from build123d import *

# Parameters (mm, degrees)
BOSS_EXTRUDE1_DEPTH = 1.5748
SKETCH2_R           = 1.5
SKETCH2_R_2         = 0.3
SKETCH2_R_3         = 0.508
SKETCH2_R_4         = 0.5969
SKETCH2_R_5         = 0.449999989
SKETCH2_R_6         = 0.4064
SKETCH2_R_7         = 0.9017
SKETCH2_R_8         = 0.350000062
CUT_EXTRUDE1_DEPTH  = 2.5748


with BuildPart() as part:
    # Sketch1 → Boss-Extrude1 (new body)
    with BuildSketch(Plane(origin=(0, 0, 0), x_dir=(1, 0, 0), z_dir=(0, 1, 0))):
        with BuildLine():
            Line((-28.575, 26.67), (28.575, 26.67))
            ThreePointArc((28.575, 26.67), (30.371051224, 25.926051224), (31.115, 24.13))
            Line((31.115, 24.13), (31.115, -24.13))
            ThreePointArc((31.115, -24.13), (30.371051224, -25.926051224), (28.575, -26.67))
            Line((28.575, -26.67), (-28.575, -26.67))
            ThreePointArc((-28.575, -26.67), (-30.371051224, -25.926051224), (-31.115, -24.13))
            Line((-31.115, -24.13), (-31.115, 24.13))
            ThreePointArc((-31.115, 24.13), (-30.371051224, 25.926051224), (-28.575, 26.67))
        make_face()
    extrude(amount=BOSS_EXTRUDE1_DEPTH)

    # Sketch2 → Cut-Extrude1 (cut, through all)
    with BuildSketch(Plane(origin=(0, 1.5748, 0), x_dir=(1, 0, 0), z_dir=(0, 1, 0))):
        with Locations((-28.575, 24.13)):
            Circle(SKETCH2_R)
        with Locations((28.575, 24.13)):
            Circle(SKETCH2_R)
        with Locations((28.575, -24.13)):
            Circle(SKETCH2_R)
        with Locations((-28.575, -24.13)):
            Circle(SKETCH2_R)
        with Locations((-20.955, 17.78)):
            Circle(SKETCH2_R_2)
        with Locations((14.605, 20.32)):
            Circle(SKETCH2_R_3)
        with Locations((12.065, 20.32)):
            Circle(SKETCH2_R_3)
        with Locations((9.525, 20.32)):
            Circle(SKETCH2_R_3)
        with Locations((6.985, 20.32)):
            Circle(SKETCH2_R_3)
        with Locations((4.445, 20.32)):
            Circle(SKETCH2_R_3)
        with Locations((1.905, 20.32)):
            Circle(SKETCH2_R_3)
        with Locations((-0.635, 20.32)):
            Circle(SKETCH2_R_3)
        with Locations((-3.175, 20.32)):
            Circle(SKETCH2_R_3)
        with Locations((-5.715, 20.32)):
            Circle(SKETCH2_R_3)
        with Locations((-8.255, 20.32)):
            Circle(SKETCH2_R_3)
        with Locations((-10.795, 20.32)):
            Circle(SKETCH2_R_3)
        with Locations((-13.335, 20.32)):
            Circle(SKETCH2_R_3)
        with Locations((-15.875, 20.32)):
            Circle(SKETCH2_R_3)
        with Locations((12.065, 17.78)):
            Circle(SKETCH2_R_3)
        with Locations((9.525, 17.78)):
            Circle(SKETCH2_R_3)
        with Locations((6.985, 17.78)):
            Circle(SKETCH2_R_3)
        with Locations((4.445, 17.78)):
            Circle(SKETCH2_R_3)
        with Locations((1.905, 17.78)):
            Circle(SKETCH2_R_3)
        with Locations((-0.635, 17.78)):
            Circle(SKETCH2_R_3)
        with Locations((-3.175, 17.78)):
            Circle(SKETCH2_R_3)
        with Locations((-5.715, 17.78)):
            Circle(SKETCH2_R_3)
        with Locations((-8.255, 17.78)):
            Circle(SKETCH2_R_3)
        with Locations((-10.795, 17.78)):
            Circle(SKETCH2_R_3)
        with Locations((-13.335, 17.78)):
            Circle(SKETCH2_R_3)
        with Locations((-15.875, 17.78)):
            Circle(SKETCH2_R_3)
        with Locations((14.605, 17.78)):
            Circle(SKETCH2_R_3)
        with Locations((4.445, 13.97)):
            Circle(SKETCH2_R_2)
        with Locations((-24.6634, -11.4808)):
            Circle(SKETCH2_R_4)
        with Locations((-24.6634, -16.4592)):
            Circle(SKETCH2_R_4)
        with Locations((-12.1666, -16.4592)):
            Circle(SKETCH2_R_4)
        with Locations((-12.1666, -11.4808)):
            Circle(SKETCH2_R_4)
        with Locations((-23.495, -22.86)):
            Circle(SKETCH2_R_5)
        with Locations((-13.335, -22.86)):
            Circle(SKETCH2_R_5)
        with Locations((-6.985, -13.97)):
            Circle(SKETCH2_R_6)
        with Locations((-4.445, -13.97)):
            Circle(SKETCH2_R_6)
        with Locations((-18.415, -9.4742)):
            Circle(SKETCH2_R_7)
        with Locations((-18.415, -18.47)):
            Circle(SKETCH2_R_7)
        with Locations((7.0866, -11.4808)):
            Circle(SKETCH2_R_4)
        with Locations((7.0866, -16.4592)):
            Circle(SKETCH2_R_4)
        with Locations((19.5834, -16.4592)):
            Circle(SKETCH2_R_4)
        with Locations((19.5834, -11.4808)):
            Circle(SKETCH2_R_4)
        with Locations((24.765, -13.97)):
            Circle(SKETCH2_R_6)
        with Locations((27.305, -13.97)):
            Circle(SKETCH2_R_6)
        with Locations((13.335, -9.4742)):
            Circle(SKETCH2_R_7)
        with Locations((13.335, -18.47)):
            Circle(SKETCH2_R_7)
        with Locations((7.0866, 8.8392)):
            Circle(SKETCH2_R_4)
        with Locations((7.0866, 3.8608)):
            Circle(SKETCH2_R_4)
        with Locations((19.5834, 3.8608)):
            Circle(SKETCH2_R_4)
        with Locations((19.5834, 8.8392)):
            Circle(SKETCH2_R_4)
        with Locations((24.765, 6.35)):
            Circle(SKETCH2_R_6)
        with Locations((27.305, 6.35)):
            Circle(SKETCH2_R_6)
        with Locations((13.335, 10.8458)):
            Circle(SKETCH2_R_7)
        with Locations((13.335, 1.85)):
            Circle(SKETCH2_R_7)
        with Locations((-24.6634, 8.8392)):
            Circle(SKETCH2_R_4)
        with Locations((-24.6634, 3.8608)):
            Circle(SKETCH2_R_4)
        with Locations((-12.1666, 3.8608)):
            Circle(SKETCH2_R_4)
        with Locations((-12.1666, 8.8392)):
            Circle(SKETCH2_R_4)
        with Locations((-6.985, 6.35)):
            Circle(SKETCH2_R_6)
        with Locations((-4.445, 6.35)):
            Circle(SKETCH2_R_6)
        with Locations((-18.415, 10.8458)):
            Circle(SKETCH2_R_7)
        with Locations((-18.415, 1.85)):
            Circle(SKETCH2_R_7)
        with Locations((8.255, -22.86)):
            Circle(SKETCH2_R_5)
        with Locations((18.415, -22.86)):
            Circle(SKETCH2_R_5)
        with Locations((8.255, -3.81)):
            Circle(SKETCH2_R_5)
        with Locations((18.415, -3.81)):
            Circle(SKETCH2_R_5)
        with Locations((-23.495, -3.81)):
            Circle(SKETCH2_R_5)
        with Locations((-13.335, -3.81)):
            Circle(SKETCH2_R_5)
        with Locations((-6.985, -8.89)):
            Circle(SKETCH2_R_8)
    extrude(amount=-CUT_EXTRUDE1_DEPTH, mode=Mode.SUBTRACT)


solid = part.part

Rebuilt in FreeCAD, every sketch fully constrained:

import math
import FreeCAD as App
import Part
import Sketcher
from FreeCAD import Vector
Q = App.Units.Quantity

doc = App.newDocument("Part")
body = doc.addObject("PartDesign::Body", "Body")

# Sketch on XZ plane
sketch1 = body.newObject("Sketcher::SketchObject", "Sketch")
sketch1.AttachmentSupport = (doc.getObject("XZ_Plane"), [""])
sketch1.MapMode = "FlatFace"
sketch1.addGeometry([
    Part.LineSegment(Vector(28.575, -26.67, 0), Vector(-28.575, -26.67, 0)),  # 0
    Part.ArcOfCircle(Part.Circle(Vector(-28.575, -24.13, 0), Vector(0, 0, 1), 2.54), math.radians(-180), math.radians(-90)),  # 1
    Part.LineSegment(Vector(-31.115, -24.13, 0), Vector(-31.115, 24.13, 0)),  # 2
    Part.ArcOfCircle(Part.Circle(Vector(-28.575, 24.13, 0), Vector(0, 0, 1), 2.54), math.radians(90), math.radians(180)),  # 3
    Part.LineSegment(Vector(-28.575, 26.67, 0), Vector(28.575, 26.67, 0)),  # 4
    Part.ArcOfCircle(Part.Circle(Vector(28.575, 24.13, 0), Vector(0, 0, 1), 2.54), math.radians(0), math.radians(90)),  # 5
    Part.LineSegment(Vector(31.115, 24.13, 0), Vector(31.115, -24.13, 0)),  # 6
    Part.ArcOfCircle(Part.Circle(Vector(28.575, -24.13, 0), Vector(0, 0, 1), 2.54), math.radians(-90), math.radians(0)),  # 7
], False)
sketch1.addConstraint([
    Sketcher.Constraint("Tangent", 0, 2, 1, 2),
    Sketcher.Constraint("Tangent", 1, 1, 2, 1),
    Sketcher.Constraint("Tangent", 2, 2, 3, 2),
    Sketcher.Constraint("Tangent", 3, 1, 4, 1),
    Sketcher.Constraint("Tangent", 4, 2, 5, 2),
    Sketcher.Constraint("Tangent", 5, 1, 6, 1),
    Sketcher.Constraint("Tangent", 6, 2, 7, 2),
    Sketcher.Constraint("Tangent", 7, 1, 0, 1),
    Sketcher.Constraint("Horizontal", 0),
    Sketcher.Constraint("Vertical", 2),
    Sketcher.Constraint("Horizontal", 4),
    Sketcher.Constraint("Vertical", 6),
    Sketcher.Constraint("Equal", 1, 3),
    Sketcher.Constraint("Equal", 3, 5),
    Sketcher.Constraint("Equal", 5, 7),
    Sketcher.Constraint("Symmetric", 1, 3, 5, 3, -1, 1),
    Sketcher.Constraint("Radius", 1, Q("0.1 in")),
    Sketcher.Constraint("DistanceY", 2, 1, 2, 2, Q("1.9 in")),
    Sketcher.Constraint("DistanceX", 0, 2, 0, 1, Q("2.25 in")),
])
pad1 = body.newObject("PartDesign::Pad", "Pad")
pad1.Profile = sketch1
pad1.Length = Q("0.062 in")
pad1.Reversed = True

# Sketch on XZ plane
sketch2 = body.newObject("Sketcher::SketchObject", "Sketch001")
sketch2.AttachmentSupport = (doc.getObject("XZ_Plane"), [""])
sketch2.MapMode = "FlatFace"
sketch2.AttachmentOffset = App.Placement(Vector(0, 0, -0.062 * 25.4), App.Rotation())
sketch2.addGeometry([
    Part.Circle(Vector(-28.575, -24.13, 0), Vector(0, 0, 1), 1.5),  # 0
    Part.Circle(Vector(28.575, -24.13, 0), Vector(0, 0, 1), 1.5),  # 1
    Part.Circle(Vector(28.575, 24.13, 0), Vector(0, 0, 1), 1.5),  # 2
    Part.Circle(Vector(-28.575, 24.13, 0), Vector(0, 0, 1), 1.5),  # 3
    Part.Circle(Vector(-20.955, -17.78, 0), Vector(0, 0, 1), 0.3),  # 4
    Part.Circle(Vector(14.605, -20.32, 0), Vector(0, 0, 1), 0.508),  # 5
    Part.Circle(Vector(12.065, -20.32, 0), Vector(0, 0, 1), 0.508),  # 6
    Part.Circle(Vector(9.525, -20.32, 0), Vector(0, 0, 1), 0.508),  # 7
    Part.Circle(Vector(6.985, -20.32, 0), Vector(0, 0, 1), 0.508),  # 8
    Part.Circle(Vector(4.445, -20.32, 0), Vector(0, 0, 1), 0.508),  # 9
    Part.Circle(Vector(1.905, -20.32, 0), Vector(0, 0, 1), 0.508),  # 10
    Part.Circle(Vector(-0.635, -20.32, 0), Vector(0, 0, 1), 0.508),  # 11
    Part.Circle(Vector(-3.175, -20.32, 0), Vector(0, 0, 1), 0.508),  # 12
    Part.Circle(Vector(-5.715, -20.32, 0), Vector(0, 0, 1), 0.508),  # 13
    Part.Circle(Vector(-8.255, -20.32, 0), Vector(0, 0, 1), 0.508),  # 14
    Part.Circle(Vector(-10.795, -20.32, 0), Vector(0, 0, 1), 0.508),  # 15
    Part.Circle(Vector(-13.335, -20.32, 0), Vector(0, 0, 1), 0.508),  # 16
    Part.Circle(Vector(-15.875, -20.32, 0), Vector(0, 0, 1), 0.508),  # 17
    Part.Circle(Vector(12.065, -17.78, 0), Vector(0, 0, 1), 0.508),  # 18
    Part.Circle(Vector(9.525, -17.78, 0), Vector(0, 0, 1), 0.508),  # 19
    Part.Circle(Vector(6.985, -17.78, 0), Vector(0, 0, 1), 0.508),  # 20
    Part.Circle(Vector(4.445, -17.78, 0), Vector(0, 0, 1), 0.508),  # 21
    Part.Circle(Vector(1.905, -17.78, 0), Vector(0, 0, 1), 0.508),  # 22
    Part.Circle(Vector(-0.635, -17.78, 0), Vector(0, 0, 1), 0.508),  # 23
    Part.Circle(Vector(-3.175, -17.78, 0), Vector(0, 0, 1), 0.508),  # 24
    Part.Circle(Vector(-5.715, -17.78, 0), Vector(0, 0, 1), 0.508),  # 25
    Part.Circle(Vector(-8.255, -17.78, 0), Vector(0, 0, 1), 0.508),  # 26
    Part.Circle(Vector(-10.795, -17.78, 0), Vector(0, 0, 1), 0.508),  # 27
    Part.Circle(Vector(-13.335, -17.78, 0), Vector(0, 0, 1), 0.508),  # 28
    Part.Circle(Vector(-15.875, -17.78, 0), Vector(0, 0, 1), 0.508),  # 29
    Part.Circle(Vector(14.605, -17.78, 0), Vector(0, 0, 1), 0.508),  # 30
    Part.Circle(Vector(4.445, -13.97, 0), Vector(0, 0, 1), 0.3),  # 31
    Part.Circle(Vector(-24.6634, 11.4808, 0), Vector(0, 0, 1), 0.5969),  # 32
    Part.Circle(Vector(-24.6634, 16.4592, 0), Vector(0, 0, 1), 0.5969),  # 33
    Part.Circle(Vector(-12.1666, 16.4592, 0), Vector(0, 0, 1), 0.5969),  # 34
    Part.Circle(Vector(-12.1666, 11.4808, 0), Vector(0, 0, 1), 0.5969),  # 35
    Part.Circle(Vector(-23.495, 22.86, 0), Vector(0, 0, 1), 0.45),  # 36
    Part.Circle(Vector(-13.335, 22.86, 0), Vector(0, 0, 1), 0.45),  # 37
    Part.Circle(Vector(-6.985, 13.97, 0), Vector(0, 0, 1), 0.4064),  # 38
    Part.Circle(Vector(-4.445, 13.97, 0), Vector(0, 0, 1), 0.4064),  # 39
    Part.Circle(Vector(-18.415, 9.4742, 0), Vector(0, 0, 1), 0.9017),  # 40
    Part.Circle(Vector(-18.415, 18.47, 0), Vector(0, 0, 1), 0.9017),  # 41
    Part.Circle(Vector(7.0866, 11.4808, 0), Vector(0, 0, 1), 0.5969),  # 42
    Part.Circle(Vector(7.0866, 16.4592, 0), Vector(0, 0, 1), 0.5969),  # 43
    Part.Circle(Vector(19.5834, 16.4592, 0), Vector(0, 0, 1), 0.5969),  # 44
    Part.Circle(Vector(19.5834, 11.4808, 0), Vector(0, 0, 1), 0.5969),  # 45
    Part.Circle(Vector(24.765, 13.97, 0), Vector(0, 0, 1), 0.4064),  # 46
    Part.Circle(Vector(27.305, 13.97, 0), Vector(0, 0, 1), 0.4064),  # 47
    Part.Circle(Vector(13.335, 9.4742, 0), Vector(0, 0, 1), 0.9017),  # 48
    Part.Circle(Vector(13.335, 18.47, 0), Vector(0, 0, 1), 0.9017),  # 49
    Part.Circle(Vector(7.0866, -8.8392, 0), Vector(0, 0, 1), 0.5969),  # 50
    Part.Circle(Vector(7.0866, -3.8608, 0), Vector(0, 0, 1), 0.5969),  # 51
    Part.Circle(Vector(19.5834, -3.8608, 0), Vector(0, 0, 1), 0.5969),  # 52
    Part.Circle(Vector(19.5834, -8.8392, 0), Vector(0, 0, 1), 0.5969),  # 53
    Part.Circle(Vector(24.765, -6.35, 0), Vector(0, 0, 1), 0.4064),  # 54
    Part.Circle(Vector(27.305, -6.35, 0), Vector(0, 0, 1), 0.4064),  # 55
    Part.Circle(Vector(13.335, -10.8458, 0), Vector(0, 0, 1), 0.9017),  # 56
    Part.Circle(Vector(13.335, -1.85, 0), Vector(0, 0, 1), 0.9017),  # 57
    Part.Circle(Vector(-24.6634, -8.8392, 0), Vector(0, 0, 1), 0.5969),  # 58
    Part.Circle(Vector(-24.6634, -3.8608, 0), Vector(0, 0, 1), 0.5969),  # 59
    Part.Circle(Vector(-12.1666, -3.8608, 0), Vector(0, 0, 1), 0.5969),  # 60
    Part.Circle(Vector(-12.1666, -8.8392, 0), Vector(0, 0, 1), 0.5969),  # 61
    Part.Circle(Vector(-6.985, -6.35, 0), Vector(0, 0, 1), 0.4064),  # 62
    Part.Circle(Vector(-4.445, -6.35, 0), Vector(0, 0, 1), 0.4064),  # 63
    Part.Circle(Vector(-18.415, -10.8458, 0), Vector(0, 0, 1), 0.9017),  # 64
    Part.Circle(Vector(-18.415, -1.85, 0), Vector(0, 0, 1), 0.9017),  # 65
    Part.Circle(Vector(8.255, 22.86, 0), Vector(0, 0, 1), 0.45),  # 66
    Part.Circle(Vector(18.415, 22.86, 0), Vector(0, 0, 1), 0.45),  # 67
    Part.Circle(Vector(8.255, 3.81, 0), Vector(0, 0, 1), 0.45),  # 68
    Part.Circle(Vector(18.415, 3.81, 0), Vector(0, 0, 1), 0.45),  # 69
    Part.Circle(Vector(-23.495, 3.81, 0), Vector(0, 0, 1), 0.45),  # 70
    Part.Circle(Vector(-13.335, 3.81, 0), Vector(0, 0, 1), 0.45),  # 71
    Part.Circle(Vector(-6.985, 8.89, 0), Vector(0, 0, 1), 0.35),  # 72
], False)
sketch2.addConstraint([
    Sketcher.Constraint("Equal", 0, 1),
    Sketcher.Constraint("Equal", 1, 2),
    Sketcher.Constraint("Equal", 2, 3),
    Sketcher.Constraint("Equal", 5, 6),
    Sketcher.Constraint("Equal", 6, 7),
    Sketcher.Constraint("Equal", 7, 8),
    Sketcher.Constraint("Equal", 8, 9),
    Sketcher.Constraint("Equal", 9, 10),
    Sketcher.Constraint("Equal", 10, 11),
    Sketcher.Constraint("Equal", 11, 12),
    Sketcher.Constraint("Equal", 12, 13),
    Sketcher.Constraint("Equal", 13, 14),
    Sketcher.Constraint("Equal", 14, 15),
    Sketcher.Constraint("Equal", 15, 16),
    Sketcher.Constraint("Equal", 16, 17),
    Sketcher.Constraint("Equal", 17, 18),
    Sketcher.Constraint("Equal", 18, 19),
    Sketcher.Constraint("Equal", 19, 20),
    Sketcher.Constraint("Equal", 20, 21),
    Sketcher.Constraint("Equal", 21, 22),
    Sketcher.Constraint("Equal", 22, 23),
    Sketcher.Constraint("Equal", 23, 24),
    Sketcher.Constraint("Equal", 24, 25),
    Sketcher.Constraint("Equal", 25, 26),
    Sketcher.Constraint("Equal", 26, 27),
    Sketcher.Constraint("Equal", 27, 28),
    Sketcher.Constraint("Equal", 28, 29),
    Sketcher.Constraint("Equal", 29, 30),
    Sketcher.Constraint("Equal", 4, 31),
    Sketcher.Constraint("Equal", 32, 33),
    Sketcher.Constraint("Equal", 33, 34),
    Sketcher.Constraint("Equal", 34, 35),
    Sketcher.Constraint("Equal", 36, 37),
    Sketcher.Constraint("Equal", 38, 39),
    Sketcher.Constraint("Equal", 40, 41),
    Sketcher.Constraint("Equal", 35, 42),
    Sketcher.Constraint("Equal", 42, 43),
    Sketcher.Constraint("Equal", 43, 44),
    Sketcher.Constraint("Equal", 44, 45),
    Sketcher.Constraint("Equal", 39, 46),
    Sketcher.Constraint("Equal", 46, 47),
    Sketcher.Constraint("Equal", 41, 48),
    Sketcher.Constraint("Equal", 48, 49),
    Sketcher.Constraint("Equal", 45, 50),
    Sketcher.Constraint("Equal", 50, 51),
    Sketcher.Constraint("Equal", 51, 52),
    Sketcher.Constraint("Equal", 52, 53),
    Sketcher.Constraint("Equal", 47, 54),
    Sketcher.Constraint("Equal", 54, 55),
    Sketcher.Constraint("Equal", 49, 56),
    Sketcher.Constraint("Equal", 56, 57),
    Sketcher.Constraint("Equal", 53, 58),
    Sketcher.Constraint("Equal", 58, 59),
    Sketcher.Constraint("Equal", 59, 60),
    Sketcher.Constraint("Equal", 60, 61),
    Sketcher.Constraint("Equal", 55, 62),
    Sketcher.Constraint("Equal", 62, 63),
    Sketcher.Constraint("Equal", 57, 64),
    Sketcher.Constraint("Equal", 64, 65),
    Sketcher.Constraint("Equal", 37, 66),
    Sketcher.Constraint("Equal", 66, 67),
    Sketcher.Constraint("Equal", 67, 68),
    Sketcher.Constraint("Equal", 68, 69),
    Sketcher.Constraint("Equal", 69, 70),
    Sketcher.Constraint("Equal", 70, 71),
    Sketcher.Constraint("Symmetric", 0, 3, 2, 3, -1, 1),
    Sketcher.Constraint("Symmetric", 1, 3, 3, 3, -1, 1),
    Sketcher.Constraint("Symmetric", 31, 3, 39, 3, -1, 1),
    Sketcher.Constraint("Symmetric", 0, 3, 1, 3, -2),
    Sketcher.Constraint("Horizontal", 5, 3, 6, 3),
    Sketcher.Constraint("Horizontal", 6, 3, 7, 3),
    Sketcher.Constraint("Horizontal", 7, 3, 8, 3),
    Sketcher.Constraint("Horizontal", 8, 3, 9, 3),
    Sketcher.Constraint("Horizontal", 9, 3, 10, 3),
    Sketcher.Constraint("Horizontal", 10, 3, 11, 3),
    Sketcher.Constraint("Horizontal", 11, 3, 12, 3),
    Sketcher.Constraint("Horizontal", 12, 3, 13, 3),
    Sketcher.Constraint("Horizontal", 13, 3, 14, 3),
    Sketcher.Constraint("Horizontal", 14, 3, 15, 3),
    Sketcher.Constraint("Horizontal", 15, 3, 16, 3),
    Sketcher.Constraint("Horizontal", 16, 3, 17, 3),
    Sketcher.Constraint("Horizontal", 4, 3, 18, 3),
    Sketcher.Constraint("Horizontal", 18, 3, 19, 3),
    Sketcher.Constraint("Horizontal", 19, 3, 20, 3),
    Sketcher.Constraint("Horizontal", 20, 3, 21, 3),
    Sketcher.Constraint("Horizontal", 21, 3, 22, 3),
    Sketcher.Constraint("Horizontal", 22, 3, 23, 3),
    Sketcher.Constraint("Horizontal", 23, 3, 24, 3),
    Sketcher.Constraint("Horizontal", 24, 3, 25, 3),
    Sketcher.Constraint("Horizontal", 25, 3, 26, 3),
    Sketcher.Constraint("Horizontal", 26, 3, 27, 3),
    Sketcher.Constraint("Horizontal", 27, 3, 28, 3),
    Sketcher.Constraint("Horizontal", 28, 3, 29, 3),
    Sketcher.Constraint("Horizontal", 29, 3, 30, 3),
    Sketcher.Constraint("Horizontal", 33, 3, 34, 3),
    Sketcher.Constraint("Horizontal", 32, 3, 35, 3),
    Sketcher.Constraint("Horizontal", 36, 3, 37, 3),
    Sketcher.Constraint("Horizontal", 38, 3, 39, 3),
    Sketcher.Constraint("Horizontal", 35, 3, 42, 3),
    Sketcher.Constraint("Horizontal", 34, 3, 43, 3),
    Sketcher.Constraint("Horizontal", 43, 3, 44, 3),
    Sketcher.Constraint("Horizontal", 42, 3, 45, 3),
    Sketcher.Constraint("Horizontal", 39, 3, 46, 3),
    Sketcher.Constraint("Horizontal", 46, 3, 47, 3),
    Sketcher.Constraint("Horizontal", 40, 3, 48, 3),
    Sketcher.Constraint("Horizontal", 41, 3, 49, 3),
    Sketcher.Constraint("Horizontal", 51, 3, 52, 3),
    Sketcher.Constraint("Horizontal", 50, 3, 53, 3),
    Sketcher.Constraint("Horizontal", 54, 3, 55, 3),
    Sketcher.Constraint("Horizontal", 53, 3, 58, 3),
    Sketcher.Constraint("Horizontal", 52, 3, 59, 3),
    Sketcher.Constraint("Horizontal", 59, 3, 60, 3),
    Sketcher.Constraint("Horizontal", 58, 3, 61, 3),
    Sketcher.Constraint("Horizontal", 55, 3, 62, 3),
    Sketcher.Constraint("Horizontal", 62, 3, 63, 3),
    Sketcher.Constraint("Horizontal", 56, 3, 64, 3),
    Sketcher.Constraint("Horizontal", 57, 3, 65, 3),
    Sketcher.Constraint("Horizontal", 37, 3, 66, 3),
    Sketcher.Constraint("Horizontal", 66, 3, 67, 3),
    Sketcher.Constraint("Horizontal", 68, 3, 69, 3),
    Sketcher.Constraint("Horizontal", 69, 3, 70, 3),
    Sketcher.Constraint("Horizontal", 70, 3, 71, 3),
    Sketcher.Constraint("Vertical", 6, 3, 18, 3),
    Sketcher.Constraint("Vertical", 7, 3, 19, 3),
    Sketcher.Constraint("Vertical", 8, 3, 20, 3),
    Sketcher.Constraint("Vertical", 9, 3, 21, 3),
    Sketcher.Constraint("Vertical", 10, 3, 22, 3),
    Sketcher.Constraint("Vertical", 11, 3, 23, 3),
    Sketcher.Constraint("Vertical", 12, 3, 24, 3),
    Sketcher.Constraint("Vertical", 13, 3, 25, 3),
    Sketcher.Constraint("Vertical", 14, 3, 26, 3),
    Sketcher.Constraint("Vertical", 15, 3, 27, 3),
    Sketcher.Constraint("Vertical", 16, 3, 28, 3),
    Sketcher.Constraint("Vertical", 17, 3, 29, 3),
    Sketcher.Constraint("Vertical", 5, 3, 30, 3),
    Sketcher.Constraint("Vertical", 21, 3, 31, 3),
    Sketcher.Constraint("Vertical", 32, 3, 33, 3),
    Sketcher.Constraint("Vertical", 34, 3, 35, 3),
    Sketcher.Constraint("Vertical", 28, 3, 37, 3),
    Sketcher.Constraint("Vertical", 40, 3, 41, 3),
    Sketcher.Constraint("Vertical", 42, 3, 43, 3),
    Sketcher.Constraint("Vertical", 44, 3, 45, 3),
    Sketcher.Constraint("Vertical", 48, 3, 49, 3),
    Sketcher.Constraint("Vertical", 43, 3, 50, 3),
    Sketcher.Constraint("Vertical", 50, 3, 51, 3),
    Sketcher.Constraint("Vertical", 45, 3, 52, 3),
    Sketcher.Constraint("Vertical", 52, 3, 53, 3),
    Sketcher.Constraint("Vertical", 46, 3, 54, 3),
    Sketcher.Constraint("Vertical", 47, 3, 55, 3),
    Sketcher.Constraint("Vertical", 49, 3, 56, 3),
    Sketcher.Constraint("Vertical", 56, 3, 57, 3),
    Sketcher.Constraint("Vertical", 33, 3, 58, 3),
    Sketcher.Constraint("Vertical", 58, 3, 59, 3),
    Sketcher.Constraint("Vertical", 35, 3, 60, 3),
    Sketcher.Constraint("Vertical", 60, 3, 61, 3),
    Sketcher.Constraint("Vertical", 38, 3, 62, 3),
    Sketcher.Constraint("Vertical", 39, 3, 63, 3),
    Sketcher.Constraint("Vertical", 41, 3, 64, 3),
    Sketcher.Constraint("Vertical", 64, 3, 65, 3),
    Sketcher.Constraint("Vertical", 66, 3, 68, 3),
    Sketcher.Constraint("Vertical", 67, 3, 69, 3),
    Sketcher.Constraint("Vertical", 36, 3, 70, 3),
    Sketcher.Constraint("Vertical", 37, 3, 71, 3),
    Sketcher.Constraint("Vertical", 62, 3, 72, 3),
    Sketcher.Constraint("Diameter", 5, Q("0.04 in")),
    Sketcher.Constraint("Diameter", 32, Q("0.047 in")),
    Sketcher.Constraint("Diameter", 38, Q("0.032 in")),
    Sketcher.Constraint("Diameter", 40, Q("0.071 in")),
    Sketcher.Constraint("DistanceY", 4, 3, -1, 1, Q("0.7 in")),
    Sketcher.Constraint("DistanceY", 5, 3, -1, 1, Q("0.8 in")),
    Sketcher.Constraint("DistanceY", -1, 1, 36, 3, Q("0.9 in")),
    Sketcher.Constraint("Diameter", 0, Q("3 mm")),
    Sketcher.Constraint("Diameter", 4, Q("0.6 mm")),
    Sketcher.Constraint("Diameter", 36, Q("0.9 mm")),
    Sketcher.Constraint("Diameter", 72, Q("0.7 mm")),
    Sketcher.Constraint("DistanceY", 0, 3, -1, 1, Q("0.95 in")),
    Sketcher.Constraint("DistanceY", 31, 3, -1, 1, Q("0.55 in")),
    Sketcher.Constraint("DistanceY", 54, 3, -1, 1, Q("0.25 in")),
    Sketcher.Constraint("DistanceY", -1, 1, 68, 3, Q("0.15 in")),
    Sketcher.Constraint("DistanceY", -1, 1, 72, 3, Q("0.35 in")),
    Sketcher.Constraint("DistanceX", 0, 3, -1, 1, Q("1.125 in")),
    Sketcher.Constraint("DistanceX", 4, 3, -1, 1, Q("0.825 in")),
    Sketcher.Constraint("DistanceX", -1, 1, 5, 3, Q("0.575 in")),
    Sketcher.Constraint("DistanceX", -1, 1, 6, 3, Q("0.475 in")),
    Sketcher.Constraint("DistanceX", -1, 1, 7, 3, Q("0.375 in")),
    Sketcher.Constraint("DistanceX", -1, 1, 8, 3, Q("0.275 in")),
    Sketcher.Constraint("DistanceX", -1, 1, 9, 3, Q("0.175 in")),
    Sketcher.Constraint("DistanceX", -1, 1, 10, 3, Q("0.075 in")),
    Sketcher.Constraint("DistanceX", 11, 3, -1, 1, Q("0.025 in")),
    Sketcher.Constraint("DistanceX", 12, 3, -1, 1, Q("0.125 in")),
    Sketcher.Constraint("DistanceX", 13, 3, -1, 1, Q("0.225 in")),
    Sketcher.Constraint("DistanceX", 14, 3, -1, 1, Q("0.325 in")),
    Sketcher.Constraint("DistanceX", 15, 3, -1, 1, Q("0.425 in")),
    Sketcher.Constraint("DistanceX", 16, 3, -1, 1, Q("0.525 in")),
    Sketcher.Constraint("DistanceX", 17, 3, -1, 1, Q("0.625 in")),
    Sketcher.Constraint("DistanceX", 32, 3, -1, 1, Q("0.971 in")),
    Sketcher.Constraint("DistanceY", -1, 1, 32, 3, Q("0.452 in")),
    Sketcher.Constraint("DistanceY", -1, 1, 33, 3, Q("0.648 in")),
    Sketcher.Constraint("DistanceX", 34, 3, -1, 1, Q("0.479 in")),
    Sketcher.Constraint("DistanceX", 36, 3, -1, 1, Q("0.925 in")),
    Sketcher.Constraint("DistanceX", 38, 3, -1, 1, Q("0.275 in")),
    Sketcher.Constraint("DistanceX", 40, 3, -1, 1, Q("0.725 in")),
    Sketcher.Constraint("DistanceY", -1, 1, 40, 3, Q("0.373 in")),
    Sketcher.Constraint("DistanceX", -1, 1, 42, 3, Q("0.279 in")),
    Sketcher.Constraint("DistanceX", -1, 1, 44, 3, Q("0.771 in")),
    Sketcher.Constraint("DistanceX", -1, 1, 46, 3, Q("0.975 in")),
    Sketcher.Constraint("DistanceX", -1, 1, 47, 3, Q("1.075 in")),
    Sketcher.Constraint("DistanceX", -1, 1, 48, 3, Q("0.525 in")),
    Sketcher.Constraint("DistanceY", 50, 3, -1, 1, Q("0.348 in")),
    Sketcher.Constraint("DistanceY", 51, 3, -1, 1, Q("0.152 in")),
    Sketcher.Constraint("DistanceY", 56, 3, -1, 1, Q("0.427 in")),
    Sketcher.Constraint("DistanceX", -1, 1, 66, 3, Q("0.325 in")),
    Sketcher.Constraint("DistanceX", -1, 1, 67, 3, Q("0.725 in")),
    Sketcher.Constraint("DistanceY", -1, 1, 41, 3, Q("18.47 mm")),
    Sketcher.Constraint("DistanceY", 57, 3, -1, 1, Q("1.85 mm")),
])
pocket1 = body.newObject("PartDesign::Pocket", "Pocket")
pocket1.Profile = sketch2
pocket1.Type = "ThroughAll"
pocket1.Reversed = True

doc.recompute()
